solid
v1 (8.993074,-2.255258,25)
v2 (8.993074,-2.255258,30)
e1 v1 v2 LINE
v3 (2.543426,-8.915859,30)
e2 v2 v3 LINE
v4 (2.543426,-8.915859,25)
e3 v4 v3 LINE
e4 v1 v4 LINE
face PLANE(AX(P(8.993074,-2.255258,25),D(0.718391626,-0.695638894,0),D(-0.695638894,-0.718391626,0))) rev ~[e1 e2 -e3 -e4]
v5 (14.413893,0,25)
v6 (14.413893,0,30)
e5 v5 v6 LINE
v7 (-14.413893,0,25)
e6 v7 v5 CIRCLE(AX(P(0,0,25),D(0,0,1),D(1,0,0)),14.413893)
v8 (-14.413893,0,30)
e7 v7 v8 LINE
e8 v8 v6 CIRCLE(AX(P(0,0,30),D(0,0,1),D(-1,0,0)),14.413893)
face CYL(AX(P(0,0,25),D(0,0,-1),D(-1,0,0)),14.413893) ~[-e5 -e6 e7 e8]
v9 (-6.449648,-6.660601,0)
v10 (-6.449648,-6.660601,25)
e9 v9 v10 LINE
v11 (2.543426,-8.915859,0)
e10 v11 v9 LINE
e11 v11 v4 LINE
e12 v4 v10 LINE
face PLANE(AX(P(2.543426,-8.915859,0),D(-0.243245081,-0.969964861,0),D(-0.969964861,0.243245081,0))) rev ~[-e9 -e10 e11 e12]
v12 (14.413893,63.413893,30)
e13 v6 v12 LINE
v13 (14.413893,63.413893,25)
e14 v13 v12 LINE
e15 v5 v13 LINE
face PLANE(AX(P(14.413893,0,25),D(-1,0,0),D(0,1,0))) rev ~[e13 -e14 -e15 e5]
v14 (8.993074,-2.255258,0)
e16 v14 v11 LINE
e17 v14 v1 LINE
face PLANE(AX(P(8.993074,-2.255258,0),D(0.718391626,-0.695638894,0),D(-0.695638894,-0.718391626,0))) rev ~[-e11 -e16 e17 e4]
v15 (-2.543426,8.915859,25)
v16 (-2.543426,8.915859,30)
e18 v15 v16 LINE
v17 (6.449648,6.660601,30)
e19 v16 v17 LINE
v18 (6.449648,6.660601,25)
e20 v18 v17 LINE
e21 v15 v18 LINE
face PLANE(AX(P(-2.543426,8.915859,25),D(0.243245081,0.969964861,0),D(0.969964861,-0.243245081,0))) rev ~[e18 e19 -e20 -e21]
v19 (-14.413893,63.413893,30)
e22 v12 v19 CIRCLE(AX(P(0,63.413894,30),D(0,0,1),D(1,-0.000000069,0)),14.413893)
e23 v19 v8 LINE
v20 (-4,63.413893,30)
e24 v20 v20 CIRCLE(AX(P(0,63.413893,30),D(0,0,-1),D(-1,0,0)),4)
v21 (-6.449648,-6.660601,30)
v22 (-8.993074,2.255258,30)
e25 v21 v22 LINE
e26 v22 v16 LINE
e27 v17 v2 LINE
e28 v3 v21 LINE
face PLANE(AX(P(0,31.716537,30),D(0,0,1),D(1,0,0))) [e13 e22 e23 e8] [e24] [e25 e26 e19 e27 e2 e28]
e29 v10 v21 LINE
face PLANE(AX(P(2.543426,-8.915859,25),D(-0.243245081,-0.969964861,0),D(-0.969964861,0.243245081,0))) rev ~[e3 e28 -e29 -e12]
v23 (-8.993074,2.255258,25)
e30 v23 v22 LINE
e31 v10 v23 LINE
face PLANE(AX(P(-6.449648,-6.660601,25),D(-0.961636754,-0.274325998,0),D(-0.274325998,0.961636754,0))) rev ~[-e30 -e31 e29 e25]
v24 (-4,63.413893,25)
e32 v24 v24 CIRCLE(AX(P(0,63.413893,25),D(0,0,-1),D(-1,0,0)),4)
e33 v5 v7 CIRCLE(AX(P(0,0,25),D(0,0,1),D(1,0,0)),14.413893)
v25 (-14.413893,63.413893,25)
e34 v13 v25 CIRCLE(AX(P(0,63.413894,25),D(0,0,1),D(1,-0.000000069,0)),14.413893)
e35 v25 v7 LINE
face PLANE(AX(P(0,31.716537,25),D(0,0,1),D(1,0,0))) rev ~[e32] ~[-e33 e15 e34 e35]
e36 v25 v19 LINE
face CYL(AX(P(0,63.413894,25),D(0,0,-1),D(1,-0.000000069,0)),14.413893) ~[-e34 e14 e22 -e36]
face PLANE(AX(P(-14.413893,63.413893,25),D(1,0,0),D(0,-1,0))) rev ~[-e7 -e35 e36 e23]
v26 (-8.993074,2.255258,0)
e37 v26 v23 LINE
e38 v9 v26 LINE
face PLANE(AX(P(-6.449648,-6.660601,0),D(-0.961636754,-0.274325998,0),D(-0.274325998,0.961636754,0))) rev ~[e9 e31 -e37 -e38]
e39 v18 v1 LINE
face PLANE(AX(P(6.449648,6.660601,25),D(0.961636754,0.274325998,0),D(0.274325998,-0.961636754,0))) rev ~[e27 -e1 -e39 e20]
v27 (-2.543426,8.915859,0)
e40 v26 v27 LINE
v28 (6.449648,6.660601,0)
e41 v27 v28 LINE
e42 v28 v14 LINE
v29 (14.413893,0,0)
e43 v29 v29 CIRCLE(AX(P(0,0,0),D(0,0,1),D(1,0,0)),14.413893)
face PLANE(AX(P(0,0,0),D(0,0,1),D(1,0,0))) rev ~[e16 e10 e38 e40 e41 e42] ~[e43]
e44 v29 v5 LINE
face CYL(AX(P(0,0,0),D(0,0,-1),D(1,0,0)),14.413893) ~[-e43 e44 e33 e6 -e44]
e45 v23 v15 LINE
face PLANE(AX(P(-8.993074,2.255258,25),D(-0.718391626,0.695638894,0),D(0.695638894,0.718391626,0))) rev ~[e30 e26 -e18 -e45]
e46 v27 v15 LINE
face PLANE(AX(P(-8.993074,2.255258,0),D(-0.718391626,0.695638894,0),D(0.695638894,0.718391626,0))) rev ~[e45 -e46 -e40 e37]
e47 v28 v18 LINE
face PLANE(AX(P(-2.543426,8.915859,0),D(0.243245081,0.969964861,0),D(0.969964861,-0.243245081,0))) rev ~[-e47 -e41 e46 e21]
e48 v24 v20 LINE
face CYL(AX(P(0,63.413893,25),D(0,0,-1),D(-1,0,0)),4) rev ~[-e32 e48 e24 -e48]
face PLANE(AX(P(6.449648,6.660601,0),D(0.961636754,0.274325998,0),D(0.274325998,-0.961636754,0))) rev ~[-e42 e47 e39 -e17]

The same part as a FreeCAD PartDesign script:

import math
import FreeCAD as App
import Part
import Sketcher
Q = App.Units.Quantity


def add_polygon(sketch, points):
    """Adds a closed chain of lines whose ends are joined by coincident constraints."""
    first, n = sketch.GeometryCount, len(points)
    for a, b in zip(points, points[1:] + points[:1]):
        sketch.addGeometry(Part.LineSegment(App.Vector(*a, 0), App.Vector(*b, 0)), False)
    for i in range(n):
        sketch.addConstraint(Sketcher.Constraint("Coincident", first + i, 2, first + (i + 1) % n, 1))

doc = App.newDocument("Part")
body = doc.addObject("PartDesign::Body", "Body")

# Sketch on XY plane
sketch1 = doc.addObject("Sketcher::SketchObject", "Sketch")
body.addObject(sketch1)
sketch1.AttachmentSupport = (doc.XY_Plane, [""])
sketch1.MapMode = "FlatFace"
sketch1.addGeometry(Part.Circle(App.Vector(0, 0, 0), App.Vector(0, 0, 1), 14), False)  # 0
add_polygon(sketch1, [(-3, 9), (6, 7), (9, -2), (3, -9), (-6, -7), (-9, 2)])  # lines 1-6
sketch1.addConstraint([
    Sketcher.Constraint("Coincident", 0, 3, -1, 1),
    Sketcher.Constraint("Symmetric", 1, 2, 4, 2, -1, 1),
    Sketcher.Constraint("Symmetric", 2, 2, 5, 2, -1, 1),
    Sketcher.Constraint("Symmetric", 3, 2, 6, 2, -1, 1),
    Sketcher.Constraint("Equal", 1, 2),
    Sketcher.Constraint("Equal", 2, 3),
    Sketcher.Constraint("Diameter", 0, Q("28.827786 mm")),
    Sketcher.Constraint("DistanceY", -1, 1, 1, 2, Q("6.660601 mm")),
    Sketcher.Constraint("DistanceY", 3, 2, 2, 2, Q("6.660601 mm")),
    Sketcher.Constraint("DistanceX", 5, 2, 3, 2, Q("11.5365 mm")),
    Sketcher.Constraint("DistanceY", 2, 2, -1, 1, Q("2.255258 mm")),
])
pad1 = doc.addObject("PartDesign::Pad", "Pad")
body.addObject(pad1)
pad1.Profile = sketch1
pad1.Length = 25

# Sketch on XY plane
sketch2 = doc.addObject("Sketcher::SketchObject", "Sketch001")
body.addObject(sketch2)
sketch2.AttachmentSupport = (doc.XY_Plane, [""])
sketch2.MapMode = "FlatFace"
sketch2.AttachmentOffset = App.Placement(App.Vector(0, 0, 25), App.Rotation())
sketch2.addGeometry(Part.LineSegment(App.Vector(-14.4, 63.4, 0), App.Vector(-14.4, 0, 0)), False)  # 0
sketch2.addGeometry(Part.ArcOfCircle(Part.Circle(App.Vector(0, 0, 0), App.Vector(0, 0, 1), 14.4), math.radians(180), math.radians(360)), False)  # 1
sketch2.addGeometry(Part.LineSegment(App.Vector(14.4, 0, 0), App.Vector(14.4, 63.4, 0)), False)  # 2
sketch2.addGeometry(Part.ArcOfCircle(Part.Circle(App.Vector(0, 63.4, 0), App.Vector(0, 0, 1), 14.4), math.radians(0), math.radians(180)), False)  # 3
sketch2.addGeometry(Part.Circle(App.Vector(0, 63.4, 0), App.Vector(0, 0, 1), 4), False)  # 4
add_polygon(sketch2, [(-9, 2.3), (-2.5, 8.9), (6.4, 6.7), (9, -2.3), (2.5, -8.9), (-6.4, -6.7)])  # lines 5-10
sketch2.addConstraint([
    Sketcher.Constraint("Tangent", 0, 2, 1, 1),
    Sketcher.Constraint("Tangent", 1, 2, 2, 1),
    Sketcher.Constraint("Tangent", 2, 2, 3, 1),
    Sketcher.Constraint("Tangent", 3, 2, 0, 1),
    Sketcher.Constraint("Vertical", 0),
    Sketcher.Constraint("Vertical", 2),
    Sketcher.Constraint("Coincident", 1, 3, -1, 1),
    Sketcher.Constraint("Coincident", 4, 3, 3, 3),
    Sketcher.Constraint("Symmetric", 5, 2, 8, 2, -1, 1),
    Sketcher.Constraint("Symmetric", 6, 2, 9, 2, -1, 1),
    Sketcher.Constraint("Symmetric", 7, 2, 10, 2, -1, 1),
    Sketcher.Constraint("Equal", 5, 6),
    Sketcher.Constraint("Equal", 6, 7),
    Sketcher.Constraint("Diameter", 4, Q("8 mm")),
    Sketcher.Constraint("Radius", 1, Q("14.413893 mm")),
    Sketcher.Constraint("DistanceY", -1, 1, 6, 2, Q("6.660601 mm")),
    Sketcher.Constraint("DistanceX", 5, 2, 7, 2, Q("11.5365 mm")),
    Sketcher.Constraint("DistanceY", 8, 2, 7, 2, Q("6.660601 mm")),
    Sketcher.Constraint("DistanceY", 0, 2, 0, 1, Q("63.413893 mm")),
    Sketcher.Constraint("DistanceY", -1, 1, 5, 2, Q("8.915859 mm")),
])
pad2 = doc.addObject("PartDesign::Pad", "Pad001")
body.addObject(pad2)
pad2.Profile = sketch2
pad2.Length = 5

doc.recompute()
